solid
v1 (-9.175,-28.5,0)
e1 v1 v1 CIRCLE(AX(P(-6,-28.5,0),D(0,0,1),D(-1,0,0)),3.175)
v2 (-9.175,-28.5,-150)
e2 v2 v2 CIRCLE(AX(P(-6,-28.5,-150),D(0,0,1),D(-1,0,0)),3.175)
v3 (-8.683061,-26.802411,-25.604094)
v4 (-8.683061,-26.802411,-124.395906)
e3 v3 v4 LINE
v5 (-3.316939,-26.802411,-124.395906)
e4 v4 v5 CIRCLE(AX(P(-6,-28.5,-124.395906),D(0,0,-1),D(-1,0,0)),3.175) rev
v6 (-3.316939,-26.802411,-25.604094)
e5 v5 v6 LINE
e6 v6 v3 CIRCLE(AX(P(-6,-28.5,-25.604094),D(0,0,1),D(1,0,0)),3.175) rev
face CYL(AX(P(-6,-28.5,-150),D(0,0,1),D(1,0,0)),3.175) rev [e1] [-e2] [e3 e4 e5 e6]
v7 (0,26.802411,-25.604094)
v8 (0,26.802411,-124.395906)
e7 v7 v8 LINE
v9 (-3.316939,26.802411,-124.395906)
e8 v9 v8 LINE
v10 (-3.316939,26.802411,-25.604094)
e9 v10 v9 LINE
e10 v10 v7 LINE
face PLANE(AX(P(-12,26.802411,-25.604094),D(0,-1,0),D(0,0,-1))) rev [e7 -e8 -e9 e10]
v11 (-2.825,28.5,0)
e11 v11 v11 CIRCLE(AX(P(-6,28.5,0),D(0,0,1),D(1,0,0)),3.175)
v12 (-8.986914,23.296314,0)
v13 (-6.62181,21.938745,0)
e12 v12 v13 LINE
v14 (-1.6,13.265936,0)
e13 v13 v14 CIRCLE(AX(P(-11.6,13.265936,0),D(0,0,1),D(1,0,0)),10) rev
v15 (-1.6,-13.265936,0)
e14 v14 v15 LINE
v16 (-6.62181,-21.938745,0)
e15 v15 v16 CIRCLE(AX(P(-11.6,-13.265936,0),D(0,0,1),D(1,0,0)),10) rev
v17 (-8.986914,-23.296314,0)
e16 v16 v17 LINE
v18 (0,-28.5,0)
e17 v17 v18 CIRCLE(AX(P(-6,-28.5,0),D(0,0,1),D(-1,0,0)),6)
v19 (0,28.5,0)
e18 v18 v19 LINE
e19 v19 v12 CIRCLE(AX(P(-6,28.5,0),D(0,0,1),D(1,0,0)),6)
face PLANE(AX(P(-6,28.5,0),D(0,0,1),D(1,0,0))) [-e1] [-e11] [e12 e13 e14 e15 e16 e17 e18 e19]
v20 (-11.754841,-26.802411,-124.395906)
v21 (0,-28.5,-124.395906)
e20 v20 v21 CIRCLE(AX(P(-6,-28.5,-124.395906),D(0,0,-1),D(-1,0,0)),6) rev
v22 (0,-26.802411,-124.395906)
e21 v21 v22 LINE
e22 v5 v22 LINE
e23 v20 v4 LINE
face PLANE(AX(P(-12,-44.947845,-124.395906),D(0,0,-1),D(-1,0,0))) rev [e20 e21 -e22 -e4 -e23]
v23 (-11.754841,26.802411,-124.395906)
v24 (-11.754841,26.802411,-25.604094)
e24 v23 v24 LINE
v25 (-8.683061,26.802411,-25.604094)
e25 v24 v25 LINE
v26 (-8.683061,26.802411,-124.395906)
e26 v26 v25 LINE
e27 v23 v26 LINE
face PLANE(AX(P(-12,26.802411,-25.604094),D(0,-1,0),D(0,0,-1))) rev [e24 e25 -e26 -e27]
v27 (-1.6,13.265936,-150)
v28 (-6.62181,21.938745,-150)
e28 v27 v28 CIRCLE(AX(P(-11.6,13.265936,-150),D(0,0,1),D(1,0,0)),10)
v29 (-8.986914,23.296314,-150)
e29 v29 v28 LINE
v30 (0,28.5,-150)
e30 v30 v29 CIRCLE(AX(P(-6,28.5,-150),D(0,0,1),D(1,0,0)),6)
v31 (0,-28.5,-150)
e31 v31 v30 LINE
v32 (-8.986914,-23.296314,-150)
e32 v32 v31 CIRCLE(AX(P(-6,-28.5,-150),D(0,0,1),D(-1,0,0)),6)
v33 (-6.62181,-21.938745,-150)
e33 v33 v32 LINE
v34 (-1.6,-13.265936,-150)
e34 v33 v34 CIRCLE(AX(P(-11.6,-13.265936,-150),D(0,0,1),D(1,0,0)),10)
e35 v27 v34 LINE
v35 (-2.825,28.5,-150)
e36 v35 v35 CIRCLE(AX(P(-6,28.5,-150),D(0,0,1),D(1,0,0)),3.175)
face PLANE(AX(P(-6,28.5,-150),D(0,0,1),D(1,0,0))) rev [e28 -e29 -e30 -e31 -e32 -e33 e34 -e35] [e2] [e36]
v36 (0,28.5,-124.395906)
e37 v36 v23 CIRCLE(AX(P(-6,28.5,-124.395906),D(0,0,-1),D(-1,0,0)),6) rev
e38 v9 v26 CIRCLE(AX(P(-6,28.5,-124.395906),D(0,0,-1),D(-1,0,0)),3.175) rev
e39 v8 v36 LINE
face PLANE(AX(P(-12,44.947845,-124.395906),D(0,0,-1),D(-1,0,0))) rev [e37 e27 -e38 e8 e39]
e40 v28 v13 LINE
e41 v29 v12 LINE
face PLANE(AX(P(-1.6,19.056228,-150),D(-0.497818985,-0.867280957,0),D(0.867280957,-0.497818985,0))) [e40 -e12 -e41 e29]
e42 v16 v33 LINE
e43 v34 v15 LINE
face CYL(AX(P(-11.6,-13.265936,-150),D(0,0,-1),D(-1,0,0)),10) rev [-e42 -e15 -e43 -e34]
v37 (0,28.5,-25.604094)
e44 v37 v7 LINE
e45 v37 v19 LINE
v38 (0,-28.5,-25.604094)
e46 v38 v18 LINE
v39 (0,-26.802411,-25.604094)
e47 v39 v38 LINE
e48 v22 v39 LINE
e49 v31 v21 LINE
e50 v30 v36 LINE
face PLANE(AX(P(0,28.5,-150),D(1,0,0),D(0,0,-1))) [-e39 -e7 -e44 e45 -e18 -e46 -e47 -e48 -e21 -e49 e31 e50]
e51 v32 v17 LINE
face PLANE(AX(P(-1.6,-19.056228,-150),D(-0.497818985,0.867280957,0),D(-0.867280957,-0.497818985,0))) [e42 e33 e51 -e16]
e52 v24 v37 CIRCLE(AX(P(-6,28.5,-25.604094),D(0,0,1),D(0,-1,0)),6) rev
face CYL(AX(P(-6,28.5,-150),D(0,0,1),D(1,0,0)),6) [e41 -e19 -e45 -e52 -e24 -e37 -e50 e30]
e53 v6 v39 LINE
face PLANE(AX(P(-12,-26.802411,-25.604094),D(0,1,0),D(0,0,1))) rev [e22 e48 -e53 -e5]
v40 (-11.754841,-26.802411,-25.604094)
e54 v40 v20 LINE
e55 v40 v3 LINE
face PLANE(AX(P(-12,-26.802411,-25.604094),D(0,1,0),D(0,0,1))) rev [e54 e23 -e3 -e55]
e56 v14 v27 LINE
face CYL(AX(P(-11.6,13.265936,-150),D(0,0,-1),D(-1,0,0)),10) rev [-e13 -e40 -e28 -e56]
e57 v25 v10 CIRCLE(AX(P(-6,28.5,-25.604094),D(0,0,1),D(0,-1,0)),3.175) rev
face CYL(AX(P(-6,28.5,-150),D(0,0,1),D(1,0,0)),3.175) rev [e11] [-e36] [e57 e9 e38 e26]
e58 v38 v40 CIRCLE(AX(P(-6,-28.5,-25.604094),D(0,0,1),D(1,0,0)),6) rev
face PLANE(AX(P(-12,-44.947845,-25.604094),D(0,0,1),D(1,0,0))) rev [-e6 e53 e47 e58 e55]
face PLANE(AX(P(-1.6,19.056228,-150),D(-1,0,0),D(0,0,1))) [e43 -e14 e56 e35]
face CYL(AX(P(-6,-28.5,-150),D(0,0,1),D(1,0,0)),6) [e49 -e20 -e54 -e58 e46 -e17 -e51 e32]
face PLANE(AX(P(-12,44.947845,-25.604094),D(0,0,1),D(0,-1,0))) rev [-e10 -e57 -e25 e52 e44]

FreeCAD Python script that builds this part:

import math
import FreeCAD as App
import Part
import Sketcher


def edges_at(feature, points):
    """Names of the edges that pass closest to the given points."""
    edges = feature.Shape.Edges
    near = lambda p: min(range(len(edges)), key=lambda i: edges[i].distToShape(Part.Vertex(*p))[0])
    return sorted({f"Edge{near(p) + 1}" for p in points})


def add_polygon(sketch, points):
    """Adds a closed chain of lines whose ends are joined by coincident constraints."""
    first, n = sketch.GeometryCount, len(points)
    for a, b in zip(points, points[1:] + points[:1]):
        sketch.addGeometry(Part.LineSegment(App.Vector(*a, 0), App.Vector(*b, 0)), False)
    for i in range(n):
        sketch.addConstraint(Sketcher.Constraint("Coincident", first + i, 2, first + (i + 1) % n, 1))

doc = App.newDocument("Part")
params = doc.addObject("Spreadsheet::Sheet", "Params")
for row, (alias, value) in enumerate([
    ("sketch1_radius", "6 mm"),
    ("sketch1_diameter", "6.35 mm"),
    ("sketch1_height", "57 mm"),
    ("pad1_length", "150 mm"),
    ("fillet_radius", "10 mm"),
], start=1):
    params.set(f"A{row}", alias)
    params.set(f"B{row}", "=" + value)
    params.setAlias(f"B{row}", alias)

body = doc.addObject("PartDesign::Body", "Body")

# Sketch on XY plane
sketch1 = body.newObject("Sketcher::SketchObject", "Sketch")
sketch1.AttachmentSupport = (doc.getObject("XY_Plane"), [""])
sketch1.MapMode = "FlatFace"
sketch1.addGeometry([
    Part.LineSegment(App.Vector(-9, 23.3, 0), App.Vector(-1.6, 19.1, 0)),  # 0
    Part.LineSegment(App.Vector(-1.6, 19.1, 0), App.Vector(-1.6, -19.1, 0)),  # 1
    Part.LineSegment(App.Vector(-1.6, -19.1, 0), App.Vector(-9, -23.3, 0)),  # 2
    Part.ArcOfCircle(Part.Circle(App.Vector(-6, -28.5, 0), App.Vector(0, 0, 1), 6), math.radians(120), math.radians(360)),  # 3
    Part.LineSegment(App.Vector(0, -28.5, 0), App.Vector(0, 28.5, 0)),  # 4
    Part.ArcOfCircle(Part.Circle(App.Vector(-6, 28.5, 0), App.Vector(0, 0, 1), 6), math.radians(0), math.radians(240)),  # 5
    Part.Circle(App.Vector(-6, -28.5, 0), App.Vector(0, 0, 1), 3.2),  # 6
    Part.Circle(App.Vector(-6, 28.5, 0), App.Vector(0, 0, 1), 3.2),  # 7
], False)
sketch1.addConstraint([
    Sketcher.Constraint("Coincident", 0, 2, 1, 1),
    Sketcher.Constraint("Coincident", 1, 2, 2, 1),
    Sketcher.Constraint("Tangent", 2, 2, 3, 1),
    Sketcher.Constraint("Tangent", 3, 2, 4, 1),
    Sketcher.Constraint("Tangent", 4, 2, 5, 1),
    Sketcher.Constraint("Tangent", 5, 2, 0, 1),
    Sketcher.Constraint("Vertical", 1),
    Sketcher.Constraint("Vertical", 4),
    Sketcher.Constraint("Coincident", 6, 3, 3, 3),
    Sketcher.Constraint("Coincident", 7, 3, 5, 3),
    Sketcher.Constraint("Equal", 3, 5),
    Sketcher.Constraint("Equal", 6, 7),
    Sketcher.Constraint("Symmetric", 3, 2, 4, 2, -1, 1),
    Sketcher.Constraint("Vertical", 2, 2, 5, 2),
    Sketcher.Constraint("Radius", 3, 6.0),
    Sketcher.Constraint("Diameter", 6, 6.35),
    Sketcher.Constraint("DistanceY", 4, 1, 4, 2, 57.0),
    Sketcher.Constraint("DistanceX", 0, 2, -1, 1, 1.6),
    Sketcher.Constraint("DistanceY", 1, 2, 1, 1, 38.112456),
])
sketch1.setExpression("Constraints[14]", "Params.sketch1_radius")
sketch1.setExpression("Constraints[15]", "Params.sketch1_diameter")
sketch1.setExpression("Constraints[16]", "Params.sketch1_height")
pad1 = body.newObject("PartDesign::Pad", "Pad")
pad1.Profile = sketch1
pad1.setExpression("Length", "Params.pad1_length")
pad1.Reversed = True
doc.recompute()

fillet = body.newObject("PartDesign::Fillet", "Fillet")
fillet.Base = (pad1, edges_at(pad1, [(-1.6, -19.056, -75), (-1.6, 19.056, -75)]))
fillet.setExpression("Radius", "Params.fillet_radius")

# Sketch on YZ plane
sketch2 = body.newObject("Sketcher::SketchObject", "Sketch001")
sketch2.AttachmentSupport = (doc.getObject("YZ_Plane"), [""])
sketch2.MapMode = "FlatFace"
add_polygon(sketch2, [(45, -26), (27, -26), (27, -124), (45, -124)])  # lines 0-3
add_polygon(sketch2, [(-27, -26), (-45, -26), (-45, -124), (-27, -124)])  # lines 4-7
sketch2.addConstraint([
    Sketcher.Constraint("Horizontal", 0),
    Sketcher.Constraint("Vertical", 1),
    Sketcher.Constraint("Horizontal", 2),
    Sketcher.Constraint("Vertical", 3),
    Sketcher.Constraint("Horizontal", 4),
    Sketcher.Constraint("Vertical", 5),
    Sketcher.Constraint("Horizontal", 6),
    Sketcher.Constraint("Vertical", 7),
    Sketcher.Constraint("Symmetric", 3, 2, 4, 2, -2),
    Sketcher.Constraint("Symmetric", 1, 2, 6, 2, -2),
    Sketcher.Constraint("DistanceX", 0, 2, 0, 1, 18.145435),
    Sketcher.Constraint("DistanceY", 1, 2, 1, 1, 98.791812),
    Sketcher.Constraint("DistanceX", -1, 1, 0, 2, 26.802411),
    Sketcher.Constraint("DistanceY", 0, 2, -1, 1, 25.604094),
])
pocket1 = body.newObject("PartDesign::Pocket", "Pocket")
pocket1.Profile = sketch2
pocket1.Type = "ThroughAll"

doc.recompute()
